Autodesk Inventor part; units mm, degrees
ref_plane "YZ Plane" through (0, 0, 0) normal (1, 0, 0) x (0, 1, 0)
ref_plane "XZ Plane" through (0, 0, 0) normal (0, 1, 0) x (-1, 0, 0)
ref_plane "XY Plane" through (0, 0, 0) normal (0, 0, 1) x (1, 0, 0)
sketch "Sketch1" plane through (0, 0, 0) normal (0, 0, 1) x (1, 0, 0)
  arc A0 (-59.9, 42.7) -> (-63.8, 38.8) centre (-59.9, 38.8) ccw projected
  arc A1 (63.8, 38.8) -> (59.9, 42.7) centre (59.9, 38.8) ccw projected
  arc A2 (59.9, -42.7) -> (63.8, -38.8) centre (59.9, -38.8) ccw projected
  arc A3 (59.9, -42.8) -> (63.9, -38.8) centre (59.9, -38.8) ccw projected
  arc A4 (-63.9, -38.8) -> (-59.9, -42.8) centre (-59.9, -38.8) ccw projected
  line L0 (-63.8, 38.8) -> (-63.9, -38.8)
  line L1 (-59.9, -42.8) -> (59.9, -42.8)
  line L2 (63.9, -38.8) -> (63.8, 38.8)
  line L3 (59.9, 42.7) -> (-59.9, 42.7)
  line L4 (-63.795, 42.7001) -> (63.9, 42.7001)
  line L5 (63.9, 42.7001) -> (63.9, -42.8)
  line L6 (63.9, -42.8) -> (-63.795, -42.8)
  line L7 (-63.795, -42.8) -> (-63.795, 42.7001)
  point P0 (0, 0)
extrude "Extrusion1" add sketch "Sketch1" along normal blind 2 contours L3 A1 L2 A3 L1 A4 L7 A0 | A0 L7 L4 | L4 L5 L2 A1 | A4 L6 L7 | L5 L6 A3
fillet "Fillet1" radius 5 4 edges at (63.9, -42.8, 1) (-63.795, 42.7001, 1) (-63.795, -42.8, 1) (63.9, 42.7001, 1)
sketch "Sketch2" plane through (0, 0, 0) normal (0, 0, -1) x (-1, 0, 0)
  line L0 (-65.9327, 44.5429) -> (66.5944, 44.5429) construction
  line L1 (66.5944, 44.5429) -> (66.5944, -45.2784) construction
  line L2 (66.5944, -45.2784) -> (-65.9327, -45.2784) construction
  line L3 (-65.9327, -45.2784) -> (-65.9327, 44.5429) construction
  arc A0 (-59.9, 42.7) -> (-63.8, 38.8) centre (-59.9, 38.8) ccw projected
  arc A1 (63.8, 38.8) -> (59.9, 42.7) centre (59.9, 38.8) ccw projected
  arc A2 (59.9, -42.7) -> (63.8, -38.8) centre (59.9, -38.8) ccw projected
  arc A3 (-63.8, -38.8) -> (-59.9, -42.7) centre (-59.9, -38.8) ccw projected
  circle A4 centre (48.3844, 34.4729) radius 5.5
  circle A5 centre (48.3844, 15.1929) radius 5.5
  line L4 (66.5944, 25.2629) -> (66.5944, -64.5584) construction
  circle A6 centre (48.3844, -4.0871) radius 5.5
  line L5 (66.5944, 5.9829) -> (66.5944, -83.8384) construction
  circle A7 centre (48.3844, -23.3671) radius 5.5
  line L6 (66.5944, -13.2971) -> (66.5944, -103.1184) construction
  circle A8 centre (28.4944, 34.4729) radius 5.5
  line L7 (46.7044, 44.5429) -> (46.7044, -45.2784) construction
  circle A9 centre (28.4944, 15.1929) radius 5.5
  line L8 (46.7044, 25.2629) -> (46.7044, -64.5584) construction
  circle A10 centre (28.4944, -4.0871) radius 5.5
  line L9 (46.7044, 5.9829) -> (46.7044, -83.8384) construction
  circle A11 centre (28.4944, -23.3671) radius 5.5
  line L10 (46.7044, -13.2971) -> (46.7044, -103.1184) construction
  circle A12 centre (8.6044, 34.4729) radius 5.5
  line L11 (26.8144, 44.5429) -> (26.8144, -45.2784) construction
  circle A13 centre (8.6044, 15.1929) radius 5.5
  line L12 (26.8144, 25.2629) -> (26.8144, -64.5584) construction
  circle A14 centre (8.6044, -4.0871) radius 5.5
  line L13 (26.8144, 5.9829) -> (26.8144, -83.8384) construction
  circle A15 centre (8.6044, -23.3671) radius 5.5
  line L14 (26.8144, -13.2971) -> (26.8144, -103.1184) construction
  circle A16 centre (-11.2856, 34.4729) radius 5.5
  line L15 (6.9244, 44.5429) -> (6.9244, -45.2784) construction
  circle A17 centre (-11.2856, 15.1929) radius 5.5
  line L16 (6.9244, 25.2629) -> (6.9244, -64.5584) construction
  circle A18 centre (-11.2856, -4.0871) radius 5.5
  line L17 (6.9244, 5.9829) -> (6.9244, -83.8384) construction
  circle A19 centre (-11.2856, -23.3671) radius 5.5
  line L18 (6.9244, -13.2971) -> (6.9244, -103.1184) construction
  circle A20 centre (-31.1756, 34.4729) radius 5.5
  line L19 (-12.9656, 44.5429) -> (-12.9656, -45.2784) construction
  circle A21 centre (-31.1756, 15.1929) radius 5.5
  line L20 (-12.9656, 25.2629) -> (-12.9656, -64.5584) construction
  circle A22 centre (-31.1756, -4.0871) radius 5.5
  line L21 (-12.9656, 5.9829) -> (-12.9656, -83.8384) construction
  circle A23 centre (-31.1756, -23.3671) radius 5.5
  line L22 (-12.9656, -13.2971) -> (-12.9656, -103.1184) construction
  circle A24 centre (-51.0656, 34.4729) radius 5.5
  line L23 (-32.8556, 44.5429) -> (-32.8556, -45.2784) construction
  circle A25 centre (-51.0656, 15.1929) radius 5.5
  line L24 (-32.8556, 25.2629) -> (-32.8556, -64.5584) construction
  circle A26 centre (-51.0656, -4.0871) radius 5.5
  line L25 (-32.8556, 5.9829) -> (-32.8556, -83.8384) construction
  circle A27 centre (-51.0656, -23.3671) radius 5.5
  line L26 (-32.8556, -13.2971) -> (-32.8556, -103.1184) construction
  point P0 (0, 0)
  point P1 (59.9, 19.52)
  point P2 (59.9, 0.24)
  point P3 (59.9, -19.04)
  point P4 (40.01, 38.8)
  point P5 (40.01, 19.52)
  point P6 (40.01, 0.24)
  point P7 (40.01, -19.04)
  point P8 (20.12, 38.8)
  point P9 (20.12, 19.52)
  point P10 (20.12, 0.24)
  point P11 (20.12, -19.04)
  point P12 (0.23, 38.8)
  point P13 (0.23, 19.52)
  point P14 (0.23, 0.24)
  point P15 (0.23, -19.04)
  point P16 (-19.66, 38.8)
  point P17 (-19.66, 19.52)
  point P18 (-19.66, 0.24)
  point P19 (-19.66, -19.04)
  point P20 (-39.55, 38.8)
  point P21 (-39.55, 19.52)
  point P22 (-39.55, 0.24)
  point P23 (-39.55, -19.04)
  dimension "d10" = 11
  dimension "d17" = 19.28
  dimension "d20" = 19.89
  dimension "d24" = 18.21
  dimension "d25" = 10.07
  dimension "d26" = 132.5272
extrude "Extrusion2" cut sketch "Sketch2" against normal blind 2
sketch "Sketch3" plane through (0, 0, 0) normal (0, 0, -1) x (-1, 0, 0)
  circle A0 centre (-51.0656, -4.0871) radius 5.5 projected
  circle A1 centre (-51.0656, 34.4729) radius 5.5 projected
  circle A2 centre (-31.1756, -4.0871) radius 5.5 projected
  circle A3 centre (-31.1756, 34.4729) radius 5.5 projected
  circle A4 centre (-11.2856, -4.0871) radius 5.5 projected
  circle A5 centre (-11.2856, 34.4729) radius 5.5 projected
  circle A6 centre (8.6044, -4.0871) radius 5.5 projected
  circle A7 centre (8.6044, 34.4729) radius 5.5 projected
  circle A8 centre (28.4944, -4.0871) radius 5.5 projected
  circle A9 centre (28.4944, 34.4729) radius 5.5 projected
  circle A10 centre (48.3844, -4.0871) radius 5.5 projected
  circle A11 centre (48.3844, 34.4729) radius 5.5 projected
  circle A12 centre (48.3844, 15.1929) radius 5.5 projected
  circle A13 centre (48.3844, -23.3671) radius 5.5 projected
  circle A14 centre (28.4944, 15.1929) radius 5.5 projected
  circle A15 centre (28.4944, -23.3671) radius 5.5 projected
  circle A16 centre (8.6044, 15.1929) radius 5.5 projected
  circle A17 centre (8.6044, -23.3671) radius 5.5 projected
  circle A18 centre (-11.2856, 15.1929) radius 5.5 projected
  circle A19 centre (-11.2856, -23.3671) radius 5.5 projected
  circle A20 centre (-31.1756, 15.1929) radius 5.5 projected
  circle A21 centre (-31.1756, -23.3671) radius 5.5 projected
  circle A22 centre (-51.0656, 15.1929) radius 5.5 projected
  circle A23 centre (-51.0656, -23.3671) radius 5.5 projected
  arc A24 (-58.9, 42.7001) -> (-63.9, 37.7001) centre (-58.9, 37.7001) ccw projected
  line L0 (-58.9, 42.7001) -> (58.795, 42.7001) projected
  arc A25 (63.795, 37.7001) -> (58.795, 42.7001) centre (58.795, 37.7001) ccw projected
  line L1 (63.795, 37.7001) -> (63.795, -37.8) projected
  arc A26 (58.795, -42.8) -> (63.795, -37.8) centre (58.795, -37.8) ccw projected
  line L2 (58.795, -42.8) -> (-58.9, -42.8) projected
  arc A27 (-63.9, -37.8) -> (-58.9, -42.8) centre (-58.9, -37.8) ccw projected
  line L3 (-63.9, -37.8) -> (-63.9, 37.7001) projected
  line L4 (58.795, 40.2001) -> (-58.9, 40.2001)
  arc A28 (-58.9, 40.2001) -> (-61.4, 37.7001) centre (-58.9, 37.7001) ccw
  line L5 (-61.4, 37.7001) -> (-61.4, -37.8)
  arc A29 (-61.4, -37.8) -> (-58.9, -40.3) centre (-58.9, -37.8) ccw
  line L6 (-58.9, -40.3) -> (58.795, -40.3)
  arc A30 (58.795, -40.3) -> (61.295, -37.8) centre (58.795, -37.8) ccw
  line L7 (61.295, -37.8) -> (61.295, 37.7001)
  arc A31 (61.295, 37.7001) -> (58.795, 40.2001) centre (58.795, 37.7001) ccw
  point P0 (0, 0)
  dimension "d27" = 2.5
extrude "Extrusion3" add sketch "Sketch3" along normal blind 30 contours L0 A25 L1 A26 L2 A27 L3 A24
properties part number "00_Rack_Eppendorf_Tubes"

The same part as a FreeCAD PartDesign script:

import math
import FreeCAD as App
import Part
import Sketcher
from FreeCAD import Vector
Q = App.Units.Quantity


def edges_at(feature, points):
    """Names of the edges that pass closest to the given points."""
    edges = feature.Shape.Edges
    near = lambda p: min(range(len(edges)), key=lambda i: edges[i].distToShape(Part.Vertex(*p))[0])
    return sorted({f"Edge{near(p) + 1}" for p in points})

doc = App.newDocument("Part")
body = doc.addObject("PartDesign::Body", "Body")

# Sketch on XY plane
sketch1 = body.newObject("Sketcher::SketchObject", "Sketch")
sketch1.AttachmentSupport = (doc.getObject("XY_Plane"), [""])
sketch1.MapMode = "FlatFace"
sketch1.addGeometry([
    Part.LineSegment(Vector(59.9, 42.7, 0), Vector(-63.8, 42.7, 0)),  # 0
    Part.LineSegment(Vector(-63.8, 42.7, 0), Vector(-63.8, -42.8, 0)),  # 1
    Part.LineSegment(Vector(-63.8, -42.8, 0), Vector(63.9, -42.8, 0)),  # 2
    Part.LineSegment(Vector(63.9, -42.8, 0), Vector(63.9, 42.7, 0)),  # 3
    Part.LineSegment(Vector(63.9, 42.7, 0), Vector(59.9, 42.7, 0)),  # 4
], False)
sketch1.addConstraint([
    Sketcher.Constraint("Coincident", 0, 2, 1, 1),
    Sketcher.Constraint("Coincident", 1, 2, 2, 1),
    Sketcher.Constraint("Coincident", 2, 2, 3, 1),
    Sketcher.Constraint("Coincident", 3, 2, 4, 1),
    Sketcher.Constraint("Coincident", 4, 2, 0, 1),
    Sketcher.Constraint("Horizontal", 0),
    Sketcher.Constraint("Vertical", 1),
    Sketcher.Constraint("Horizontal", 2),
    Sketcher.Constraint("Vertical", 3),
    Sketcher.Constraint("Horizontal", 4),
    Sketcher.Constraint("DistanceX", 4, 2, 4, 1, Q("4 mm")),
    Sketcher.Constraint("DistanceY", 1, 2, 1, 1, Q("85.5 mm")),
    Sketcher.Constraint("DistanceY", -1, 1, 0, 2, Q("42.7 mm")),
    Sketcher.Constraint("DistanceX", -1, 1, 2, 2, Q("63.9 mm")),
    Sketcher.Constraint("DistanceX", 0, 2, 0, 1, Q("123.695 mm")),
])
pad1 = body.newObject("PartDesign::Pad", "Pad")
pad1.Profile = sketch1
pad1.Length = 2
doc.recompute()

fillet = body.newObject("PartDesign::Fillet", "Fillet")
fillet.Base = (pad1, edges_at(pad1, [
    (63.9, -42.8, 1),
    (-63.795, 42.7, 1),
    (-63.795, -42.8, 1),
    (63.9, 42.7, 1),
]))
fillet.Radius = 5

# Sketch on XY plane
sketch2 = body.newObject("Sketcher::SketchObject", "Sketch001")
sketch2.AttachmentSupport = (doc.getObject("XY_Plane"), [""])
sketch2.MapMode = "FlatFace"
sketch2.addGeometry([
    Part.Circle(Vector(-48, 34, 0), Vector(0, 0, 1), 6),  # 0
    Part.Circle(Vector(-48, 15, 0), Vector(0, 0, 1), 6),  # 1
    Part.Circle(Vector(-48, -4, 0), Vector(0, 0, 1), 6),  # 2
    Part.Circle(Vector(-48, -23, 0), Vector(0, 0, 1), 6),  # 3
    Part.Circle(Vector(-28, 34, 0), Vector(0, 0, 1), 6),  # 4
    Part.Circle(Vector(-28, 15, 0), Vector(0, 0, 1), 6),  # 5
    Part.Circle(Vector(-28, -4, 0), Vector(0, 0, 1), 6),  # 6
    Part.Circle(Vector(-28, -23, 0), Vector(0, 0, 1), 6),  # 7
    Part.Circle(Vector(-9, 34, 0), Vector(0, 0, 1), 6),  # 8
    Part.Circle(Vector(-9, 15, 0), Vector(0, 0, 1), 6),  # 9
    Part.Circle(Vector(-9, -4, 0), Vector(0, 0, 1), 6),  # 10
    Part.Circle(Vector(-9, -23, 0), Vector(0, 0, 1), 6),  # 11
    Part.Circle(Vector(11, 34, 0), Vector(0, 0, 1), 6),  # 12
    Part.Circle(Vector(11, 15, 0), Vector(0, 0, 1), 6),  # 13
    Part.Circle(Vector(11, -4, 0), Vector(0, 0, 1), 6),  # 14
    Part.Circle(Vector(11, -23, 0), Vector(0, 0, 1), 6),  # 15
    Part.Circle(Vector(31, 34, 0), Vector(0, 0, 1), 6),  # 16
    Part.Circle(Vector(31, 15, 0), Vector(0, 0, 1), 6),  # 17
    Part.Circle(Vector(31, -4, 0), Vector(0, 0, 1), 6),  # 18
    Part.Circle(Vector(31, -23, 0), Vector(0, 0, 1), 6),  # 19
    Part.Circle(Vector(51, 34, 0), Vector(0, 0, 1), 6),  # 20
    Part.Circle(Vector(51, 15, 0), Vector(0, 0, 1), 6),  # 21
    Part.Circle(Vector(51, -4, 0), Vector(0, 0, 1), 6),  # 22
    Part.Circle(Vector(51, -23, 0), Vector(0, 0, 1), 6),  # 23
], False)
sketch2.addConstraint([
    Sketcher.Constraint("Equal", 0, 1),
    Sketcher.Constraint("Equal", 1, 2),
    Sketcher.Constraint("Equal", 2, 3),
    Sketcher.Constraint("Equal", 3, 4),
    Sketcher.Constraint("Equal", 4, 5),
    Sketcher.Constraint("Equal", 5, 6),
    Sketcher.Constraint("Equal", 6, 7),
    Sketcher.Constraint("Equal", 7, 8),
    Sketcher.Constraint("Equal", 8, 9),
    Sketcher.Constraint("Equal", 9, 10),
    Sketcher.Constraint("Equal", 10, 11),
    Sketcher.Constraint("Equal", 11, 12),
    Sketcher.Constraint("Equal", 12, 13),
    Sketcher.Constraint("Equal", 13, 14),
    Sketcher.Constraint("Equal", 14, 15),
    Sketcher.Constraint("Equal", 15, 16),
    Sketcher.Constraint("Equal", 16, 17),
    Sketcher.Constraint("Equal", 17, 18),
    Sketcher.Constraint("Equal", 18, 19),
    Sketcher.Constraint("Equal", 19, 20),
    Sketcher.Constraint("Equal", 20, 21),
    Sketcher.Constraint("Equal", 21, 22),
    Sketcher.Constraint("Equal", 22, 23),
    Sketcher.Constraint("Horizontal", 0, 3, 4, 3),
    Sketcher.Constraint("Horizontal", 1, 3, 5, 3),
    Sketcher.Constraint("Horizontal", 2, 3, 6, 3),
    Sketcher.Constraint("Horizontal", 3, 3, 7, 3),
    Sketcher.Constraint("Horizontal", 4, 3, 8, 3),
    Sketcher.Constraint("Horizontal", 5, 3, 9, 3),
    Sketcher.Constraint("Horizontal", 6, 3, 10, 3),
    Sketcher.Constraint("Horizontal", 7, 3, 11, 3),
    Sketcher.Constraint("Horizontal", 8, 3, 12, 3),
    Sketcher.Constraint("Horizontal", 9, 3, 13, 3),
    Sketcher.Constraint("Horizontal", 10, 3, 14, 3),
    Sketcher.Constraint("Horizontal", 11, 3, 15, 3),
    Sketcher.Constraint("Horizontal", 12, 3, 16, 3),
    Sketcher.Constraint("Horizontal", 13, 3, 17, 3),
    Sketcher.Constraint("Horizontal", 14, 3, 18, 3),
    Sketcher.Constraint("Horizontal", 15, 3, 19, 3),
    Sketcher.Constraint("Horizontal", 16, 3, 20, 3),
    Sketcher.Constraint("Horizontal", 17, 3, 21, 3),
    Sketcher.Constraint("Horizontal", 18, 3, 22, 3),
    Sketcher.Constraint("Horizontal", 19, 3, 23, 3),
    Sketcher.Constraint("Vertical", 0, 3, 1, 3),
    Sketcher.Constraint("Vertical", 1, 3, 2, 3),
    Sketcher.Constraint("Vertical", 2, 3, 3, 3),
    Sketcher.Constraint("Vertical", 4, 3, 5, 3),
    Sketcher.Constraint("Vertical", 5, 3, 6, 3),
    Sketcher.Constraint("Vertical", 6, 3, 7, 3),
    Sketcher.Constraint("Vertical", 8, 3, 9, 3),
    Sketcher.Constraint("Vertical", 9, 3, 10, 3),
    Sketcher.Constraint("Vertical", 10, 3, 11, 3),
    Sketcher.Constraint("Vertical", 12, 3, 13, 3),
    Sketcher.Constraint("Vertical", 13, 3, 14, 3),
    Sketcher.Constraint("Vertical", 14, 3, 15, 3),
    Sketcher.Constraint("Vertical", 16, 3, 17, 3),
    Sketcher.Constraint("Vertical", 17, 3, 18, 3),
    Sketcher.Constraint("Vertical", 18, 3, 19, 3),
    Sketcher.Constraint("Vertical", 20, 3, 21, 3),
    Sketcher.Constraint("Vertical", 21, 3, 22, 3),
    Sketcher.Constraint("Vertical", 22, 3, 23, 3),
    Sketcher.Constraint("Diameter", 0, Q("11 mm")),
    Sketcher.Constraint("DistanceY", 1, 3, 0, 3, Q("19.28 mm")),
    Sketcher.Constraint("DistanceY", 2, 3, 1, 3, Q("19.28 mm")),
    Sketcher.Constraint("DistanceY", 3, 3, 2, 3, Q("19.28 mm")),
    Sketcher.Constraint("DistanceX", 0, 3, 4, 3, Q("19.89 mm")),
    Sketcher.Constraint("DistanceX", 4, 3, 8, 3, Q("19.89 mm")),
    Sketcher.Constraint("DistanceX", 8, 3, 12, 3, Q("19.89 mm")),
    Sketcher.Constraint("DistanceX", 12, 3, 16, 3, Q("19.89 mm")),
    Sketcher.Constraint("DistanceX", 16, 3, 20, 3, Q("19.89 mm")),
    Sketcher.Constraint("DistanceY", -1, 1, 0, 3, Q("34.473 mm")),
    Sketcher.Constraint("DistanceX", 0, 3, -1, 1, Q("48.3844 mm")),
])
pocket1 = body.newObject("PartDesign::Pocket", "Pocket")
pocket1.Profile = sketch2
pocket1.Length = 2
pocket1.Reversed = True

# Sketch on XY plane
sketch3 = body.newObject("Sketcher::SketchObject", "Sketch002")
sketch3.AttachmentSupport = (doc.getObject("XY_Plane"), [""])
sketch3.MapMode = "FlatFace"
sketch3.addGeometry([
    Part.LineSegment(Vector(-58.8, 42.7, 0), Vector(58.9, 42.7, 0)),  # 0
    Part.ArcOfCircle(Part.Circle(Vector(58.9, 37.7, 0), Vector(0, 0, 1), 5), math.radians(0), math.radians(90)),  # 1
    Part.LineSegment(Vector(63.9, 37.7, 0), Vector(63.9, -37.8, 0)),  # 2
    Part.ArcOfCircle(Part.Circle(Vector(58.9, -37.8, 0), Vector(0, 0, 1), 5), math.radians(-90), math.radians(0)),  # 3
    Part.LineSegment(Vector(58.9, -42.8, 0), Vector(-58.8, -42.8, 0)),  # 4
    Part.ArcOfCircle(Part.Circle(Vector(-58.8, -37.8, 0), Vector(0, 0, 1), 5), math.radians(180), math.radians(270)),  # 5
    Part.LineSegment(Vector(-63.8, -37.8, 0), Vector(-63.8, 37.7, 0)),  # 6
    Part.ArcOfCircle(Part.Circle(Vector(-58.8, 37.7, 0), Vector(0, 0, 1), 5), math.radians(90), math.radians(180)),  # 7
    Part.LineSegment(Vector(58.9, 40.2, 0), Vector(-58.8, 40.2, 0)),  # 8
    Part.ArcOfCircle(Part.Circle(Vector(-58.8, 37.7, 0), Vector(0, 0, 1), 2.5), math.radians(90), math.radians(180)),  # 9
    Part.LineSegment(Vector(-61.3, 37.7, 0), Vector(-61.3, -37.8, 0)),  # 10
    Part.ArcOfCircle(Part.Circle(Vector(-58.8, -37.8, 0), Vector(0, 0, 1), 2.5), math.radians(180), math.radians(270)),  # 11
    Part.LineSegment(Vector(-58.8, -40.3, 0), Vector(58.9, -40.3, 0)),  # 12
    Part.ArcOfCircle(Part.Circle(Vector(58.9, -37.8, 0), Vector(0, 0, 1), 2.5), math.radians(-90), math.radians(0)),  # 13
    Part.LineSegment(Vector(61.4, -37.8, 0), Vector(61.4, 37.7, 0)),  # 14
    Part.ArcOfCircle(Part.Circle(Vector(58.9, 37.7, 0), Vector(0, 0, 1), 2.5), math.radians(0), math.radians(90)),  # 15
], False)
sketch3.addConstraint([
    Sketcher.Constraint("Tangent", 0, 2, 1, 2),
    Sketcher.Constraint("Tangent", 1, 1, 2, 1),
    Sketcher.Constraint("Tangent", 2, 2, 3, 2),
    Sketcher.Constraint("Tangent", 3, 1, 4, 1),
    Sketcher.Constraint("Tangent", 4, 2, 5, 2),
    Sketcher.Constraint("Tangent", 5, 1, 6, 1),
    Sketcher.Constraint("Tangent", 6, 2, 7, 2),
    Sketcher.Constraint("Tangent", 7, 1, 0, 1),
    Sketcher.Constraint("Tangent", 8, 2, 9, 1),
    Sketcher.Constraint("Tangent", 9, 2, 10, 1),
    Sketcher.Constraint("Tangent", 10, 2, 11, 1),
    Sketcher.Constraint("Tangent", 11, 2, 12, 1),
    Sketcher.Constraint("Tangent", 12, 2, 13, 1),
    Sketcher.Constraint("Tangent", 13, 2, 14, 1),
    Sketcher.Constraint("Tangent", 14, 2, 15, 1),
    Sketcher.Constraint("Tangent", 15, 2, 8, 1),
    Sketcher.Constraint("Horizontal", 0),
    Sketcher.Constraint("Vertical", 2),
    Sketcher.Constraint("Horizontal", 4),
    Sketcher.Constraint("Vertical", 6),
    Sketcher.Constraint("Horizontal", 8),
    Sketcher.Constraint("Vertical", 10),
    Sketcher.Constraint("Horizontal", 12),
    Sketcher.Constraint("Vertical", 14),
    Sketcher.Constraint("Coincident", 9, 3, 7, 3),
    Sketcher.Constraint("Coincident", 11, 3, 5, 3),
    Sketcher.Constraint("Coincident", 13, 3, 3, 3),
    Sketcher.Constraint("Equal", 1, 3),
    Sketcher.Constraint("Equal", 3, 5),
    Sketcher.Constraint("Equal", 5, 7),
    Sketcher.Constraint("Equal", 13, 15),
    Sketcher.Constraint("Radius", 9, Q("2.5 mm")),
    Sketcher.Constraint("Radius", 1, Q("5 mm")),
    Sketcher.Constraint("DistanceY", 2, 2, 2, 1, Q("75.5 mm")),
    Sketcher.Constraint("DistanceX", -1, 1, 1, 3, Q("58.9 mm")),
    Sketcher.Constraint("DistanceY", -1, 1, 1, 3, Q("37.7 mm")),
    Sketcher.Constraint("DistanceX", 0, 1, 0, 2, Q("117.695 mm")),
])
pad2 = body.newObject("PartDesign::Pad", "Pad001")
pad2.Profile = sketch3
pad2.Length = 30
pad2.Reversed = True

doc.recompute()
